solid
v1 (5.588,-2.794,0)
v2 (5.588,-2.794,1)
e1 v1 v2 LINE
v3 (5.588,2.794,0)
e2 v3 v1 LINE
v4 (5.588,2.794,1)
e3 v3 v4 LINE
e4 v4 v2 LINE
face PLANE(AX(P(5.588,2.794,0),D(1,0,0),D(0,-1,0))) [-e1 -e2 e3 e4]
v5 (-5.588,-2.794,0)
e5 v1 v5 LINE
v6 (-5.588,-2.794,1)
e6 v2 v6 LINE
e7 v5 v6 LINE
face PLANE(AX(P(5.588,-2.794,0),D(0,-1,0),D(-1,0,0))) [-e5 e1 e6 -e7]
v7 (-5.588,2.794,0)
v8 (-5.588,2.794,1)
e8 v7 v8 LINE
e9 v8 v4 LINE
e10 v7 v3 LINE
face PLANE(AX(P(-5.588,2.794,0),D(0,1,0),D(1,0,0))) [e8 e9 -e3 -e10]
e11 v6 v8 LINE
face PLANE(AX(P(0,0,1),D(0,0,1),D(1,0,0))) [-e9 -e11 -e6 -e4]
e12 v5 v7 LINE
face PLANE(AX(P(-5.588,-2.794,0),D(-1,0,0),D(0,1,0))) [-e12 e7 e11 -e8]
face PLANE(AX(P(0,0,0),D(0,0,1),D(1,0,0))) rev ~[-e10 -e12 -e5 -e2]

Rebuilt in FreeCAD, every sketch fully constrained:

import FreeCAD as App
import Part
import Sketcher
Q = App.Units.Quantity


def add_polygon(sketch, points):
    """Adds a closed chain of lines whose ends are joined by coincident constraints."""
    first, n = sketch.GeometryCount, len(points)
    for a, b in zip(points, points[1:] + points[:1]):
        sketch.addGeometry(Part.LineSegment(App.Vector(*a, 0), App.Vector(*b, 0)), False)
    for i in range(n):
        sketch.addConstraint(Sketcher.Constraint("Coincident", first + i, 2, first + (i + 1) % n, 1))

doc = App.newDocument("Part")
body = doc.addObject("PartDesign::Body", "Body")

# Sketch on XY plane
sketch1 = body.newObject("Sketcher::SketchObject", "Sketch")
sketch1.AttachmentSupport = (doc.getObject("XY_Plane"), [""])
sketch1.MapMode = "FlatFace"
add_polygon(sketch1, [(6, 3), (-6, 3), (-6, -3), (6, -3)])  # lines 0-3
sketch1.addConstraint([
    Sketcher.Constraint("Horizontal", 0),
    Sketcher.Constraint("Vertical", 1),
    Sketcher.Constraint("Horizontal", 2),
    Sketcher.Constraint("Vertical", 3),
    Sketcher.Constraint("Symmetric", 0, 2, 2, 2, -1, 1),
    Sketcher.Constraint("DistanceX", 0, 2, 0, 1, Q("0.44 in")),
    Sketcher.Constraint("DistanceY", 1, 2, 1, 1, Q("0.22 in")),
])
pad1 = body.newObject("PartDesign::Pad", "Pad")
pad1.Profile = sketch1
pad1.Length = 1

doc.recompute()
